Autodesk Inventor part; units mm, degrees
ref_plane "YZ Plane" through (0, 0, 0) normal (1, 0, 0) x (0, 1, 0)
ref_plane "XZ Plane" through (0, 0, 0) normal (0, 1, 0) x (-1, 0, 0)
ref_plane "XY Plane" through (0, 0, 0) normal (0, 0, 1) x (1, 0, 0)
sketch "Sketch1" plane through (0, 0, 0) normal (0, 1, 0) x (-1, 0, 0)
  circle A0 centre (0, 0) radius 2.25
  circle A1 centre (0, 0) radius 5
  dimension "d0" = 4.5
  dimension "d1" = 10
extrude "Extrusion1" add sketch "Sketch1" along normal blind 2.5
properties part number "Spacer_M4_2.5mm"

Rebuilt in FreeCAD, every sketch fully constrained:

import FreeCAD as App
import Part
import Sketcher
from FreeCAD import Vector
Q = App.Units.Quantity

doc = App.newDocument("Part")
body = doc.addObject("PartDesign::Body", "Body")

# Sketch on XZ plane
sketch1 = body.newObject("Sketcher::SketchObject", "Sketch")
sketch1.AttachmentSupport = (doc.getObject("XZ_Plane"), [""])
sketch1.MapMode = "FlatFace"
sketch1.addGeometry([
    Part.Circle(Vector(0, 0, 0), Vector(0, 0, 1), 5),
    Part.Circle(Vector(0, 0, 0), Vector(0, 0, 1), 2.2),
], False)
sketch1.addConstraint([
    Sketcher.Constraint("Coincident", 0, 3, -1, 1),
    Sketcher.Constraint("Coincident", 1, 3, -1, 1),
    Sketcher.Constraint("Diameter", 0, Q("10 mm")),
    Sketcher.Constraint("Diameter", 1, Q("4.5 mm")),
])
pad1 = body.newObject("PartDesign::Pad", "Pad")
pad1.Profile = sketch1
pad1.Length = 2.5
pad1.Reversed = True

doc.recompute()
